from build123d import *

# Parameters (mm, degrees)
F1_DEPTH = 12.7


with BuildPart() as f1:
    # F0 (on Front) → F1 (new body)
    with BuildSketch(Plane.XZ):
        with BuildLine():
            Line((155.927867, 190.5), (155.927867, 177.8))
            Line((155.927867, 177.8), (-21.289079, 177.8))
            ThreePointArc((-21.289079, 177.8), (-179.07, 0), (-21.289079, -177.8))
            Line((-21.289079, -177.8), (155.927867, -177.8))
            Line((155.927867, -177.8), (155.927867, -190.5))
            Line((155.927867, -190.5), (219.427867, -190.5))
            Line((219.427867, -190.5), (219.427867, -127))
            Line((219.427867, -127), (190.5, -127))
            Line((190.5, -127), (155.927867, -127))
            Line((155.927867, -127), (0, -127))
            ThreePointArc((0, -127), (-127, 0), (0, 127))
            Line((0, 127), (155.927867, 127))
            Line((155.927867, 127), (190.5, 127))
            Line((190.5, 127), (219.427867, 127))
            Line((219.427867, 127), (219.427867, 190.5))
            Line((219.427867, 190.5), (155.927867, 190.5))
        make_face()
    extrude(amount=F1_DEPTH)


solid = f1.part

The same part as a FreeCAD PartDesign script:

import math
import FreeCAD as App
import Part
import Sketcher
from FreeCAD import Vector
Q = App.Units.Quantity

doc = App.newDocument("Part")
body = doc.addObject("PartDesign::Body", "Body")

# Sketch on XZ plane
sketch1 = doc.addObject("Sketcher::SketchObject", "Sketch")
body.addObject(sketch1)
sketch1.AttachmentSupport = (doc.XZ_Plane, [""])
sketch1.MapMode = "FlatFace"
sketch1.addGeometry([
    Part.LineSegment(Vector(156, 190, 0), Vector(156, 178, 0)),  # 0
    Part.LineSegment(Vector(156, 178, 0), Vector(-21, 178, 0)),  # 1
    Part.ArcOfCircle(Part.Circle(Vector(0, 0, 0), Vector(0, 0, 1), 179), math.radians(97), math.radians(263)),  # 2
    Part.LineSegment(Vector(-21, -178, 0), Vector(156, -178, 0)),  # 3
    Part.LineSegment(Vector(156, -178, 0), Vector(156, -190, 0)),  # 4
    Part.LineSegment(Vector(156, -190, 0), Vector(219, -190, 0)),  # 5
    Part.LineSegment(Vector(219, -190, 0), Vector(219, -127, 0)),  # 6
    Part.LineSegment(Vector(219, -127, 0), Vector(0, -127, 0)),  # 7
    Part.ArcOfCircle(Part.Circle(Vector(0, 0, 0), Vector(0, 0, 1), 127), math.radians(90), math.radians(270)),  # 8
    Part.LineSegment(Vector(0, 127, 0), Vector(219, 127, 0)),  # 9
    Part.LineSegment(Vector(219, 127, 0), Vector(219, 190, 0)),  # 10
    Part.LineSegment(Vector(219, 190, 0), Vector(156, 190, 0)),  # 11
], False)
sketch1.addConstraint([
    Sketcher.Constraint("Coincident", 0, 2, 1, 1),
    Sketcher.Constraint("Coincident", 1, 2, 2, 1),
    Sketcher.Constraint("Coincident", 2, 2, 3, 1),
    Sketcher.Constraint("Coincident", 3, 2, 4, 1),
    Sketcher.Constraint("Coincident", 4, 2, 5, 1),
    Sketcher.Constraint("Coincident", 5, 2, 6, 1),
    Sketcher.Constraint("Coincident", 6, 2, 7, 1),
    Sketcher.Constraint("Tangent", 7, 2, 8, 2),
    Sketcher.Constraint("Tangent", 8, 1, 9, 1),
    Sketcher.Constraint("Coincident", 9, 2, 10, 1),
    Sketcher.Constraint("Coincident", 10, 2, 11, 1),
    Sketcher.Constraint("Coincident", 11, 2, 0, 1),
    Sketcher.Constraint("Vertical", 0),
    Sketcher.Constraint("Horizontal", 1),
    Sketcher.Constraint("Horizontal", 3),
    Sketcher.Constraint("Vertical", 4),
    Sketcher.Constraint("Horizontal", 5),
    Sketcher.Constraint("Vertical", 6),
    Sketcher.Constraint("Horizontal", 7),
    Sketcher.Constraint("Horizontal", 9),
    Sketcher.Constraint("Vertical", 10),
    Sketcher.Constraint("Horizontal", 11),
    Sketcher.Constraint("Coincident", 2, 3, -1, 1),
    Sketcher.Constraint("Coincident", 8, 3, -1, 1),
    Sketcher.Constraint("Symmetric", 0, 2, 3, 2, -1),
    Sketcher.Constraint("Symmetric", 5, 2, 10, 2, -1),
    Sketcher.Constraint("Equal", 11, 6),
    Sketcher.Constraint("Radius", 8, Q("5 in")),
    Sketcher.Constraint("Radius", 2, Q("7.05 in")),
    Sketcher.Constraint("DistanceX", 5, 1, 5, 2, Q("2.5 in")),
    Sketcher.Constraint("DistanceY", 0, 2, 0, 1, Q("0.5 in")),
    Sketcher.Constraint("DistanceX", 1, 2, 1, 1, Q("177.216946 mm")),
])
pad1 = doc.addObject("PartDesign::Pad", "Pad")
body.addObject(pad1)
pad1.Profile = sketch1
pad1.Length = Q("0.5 in")

doc.recompute()
